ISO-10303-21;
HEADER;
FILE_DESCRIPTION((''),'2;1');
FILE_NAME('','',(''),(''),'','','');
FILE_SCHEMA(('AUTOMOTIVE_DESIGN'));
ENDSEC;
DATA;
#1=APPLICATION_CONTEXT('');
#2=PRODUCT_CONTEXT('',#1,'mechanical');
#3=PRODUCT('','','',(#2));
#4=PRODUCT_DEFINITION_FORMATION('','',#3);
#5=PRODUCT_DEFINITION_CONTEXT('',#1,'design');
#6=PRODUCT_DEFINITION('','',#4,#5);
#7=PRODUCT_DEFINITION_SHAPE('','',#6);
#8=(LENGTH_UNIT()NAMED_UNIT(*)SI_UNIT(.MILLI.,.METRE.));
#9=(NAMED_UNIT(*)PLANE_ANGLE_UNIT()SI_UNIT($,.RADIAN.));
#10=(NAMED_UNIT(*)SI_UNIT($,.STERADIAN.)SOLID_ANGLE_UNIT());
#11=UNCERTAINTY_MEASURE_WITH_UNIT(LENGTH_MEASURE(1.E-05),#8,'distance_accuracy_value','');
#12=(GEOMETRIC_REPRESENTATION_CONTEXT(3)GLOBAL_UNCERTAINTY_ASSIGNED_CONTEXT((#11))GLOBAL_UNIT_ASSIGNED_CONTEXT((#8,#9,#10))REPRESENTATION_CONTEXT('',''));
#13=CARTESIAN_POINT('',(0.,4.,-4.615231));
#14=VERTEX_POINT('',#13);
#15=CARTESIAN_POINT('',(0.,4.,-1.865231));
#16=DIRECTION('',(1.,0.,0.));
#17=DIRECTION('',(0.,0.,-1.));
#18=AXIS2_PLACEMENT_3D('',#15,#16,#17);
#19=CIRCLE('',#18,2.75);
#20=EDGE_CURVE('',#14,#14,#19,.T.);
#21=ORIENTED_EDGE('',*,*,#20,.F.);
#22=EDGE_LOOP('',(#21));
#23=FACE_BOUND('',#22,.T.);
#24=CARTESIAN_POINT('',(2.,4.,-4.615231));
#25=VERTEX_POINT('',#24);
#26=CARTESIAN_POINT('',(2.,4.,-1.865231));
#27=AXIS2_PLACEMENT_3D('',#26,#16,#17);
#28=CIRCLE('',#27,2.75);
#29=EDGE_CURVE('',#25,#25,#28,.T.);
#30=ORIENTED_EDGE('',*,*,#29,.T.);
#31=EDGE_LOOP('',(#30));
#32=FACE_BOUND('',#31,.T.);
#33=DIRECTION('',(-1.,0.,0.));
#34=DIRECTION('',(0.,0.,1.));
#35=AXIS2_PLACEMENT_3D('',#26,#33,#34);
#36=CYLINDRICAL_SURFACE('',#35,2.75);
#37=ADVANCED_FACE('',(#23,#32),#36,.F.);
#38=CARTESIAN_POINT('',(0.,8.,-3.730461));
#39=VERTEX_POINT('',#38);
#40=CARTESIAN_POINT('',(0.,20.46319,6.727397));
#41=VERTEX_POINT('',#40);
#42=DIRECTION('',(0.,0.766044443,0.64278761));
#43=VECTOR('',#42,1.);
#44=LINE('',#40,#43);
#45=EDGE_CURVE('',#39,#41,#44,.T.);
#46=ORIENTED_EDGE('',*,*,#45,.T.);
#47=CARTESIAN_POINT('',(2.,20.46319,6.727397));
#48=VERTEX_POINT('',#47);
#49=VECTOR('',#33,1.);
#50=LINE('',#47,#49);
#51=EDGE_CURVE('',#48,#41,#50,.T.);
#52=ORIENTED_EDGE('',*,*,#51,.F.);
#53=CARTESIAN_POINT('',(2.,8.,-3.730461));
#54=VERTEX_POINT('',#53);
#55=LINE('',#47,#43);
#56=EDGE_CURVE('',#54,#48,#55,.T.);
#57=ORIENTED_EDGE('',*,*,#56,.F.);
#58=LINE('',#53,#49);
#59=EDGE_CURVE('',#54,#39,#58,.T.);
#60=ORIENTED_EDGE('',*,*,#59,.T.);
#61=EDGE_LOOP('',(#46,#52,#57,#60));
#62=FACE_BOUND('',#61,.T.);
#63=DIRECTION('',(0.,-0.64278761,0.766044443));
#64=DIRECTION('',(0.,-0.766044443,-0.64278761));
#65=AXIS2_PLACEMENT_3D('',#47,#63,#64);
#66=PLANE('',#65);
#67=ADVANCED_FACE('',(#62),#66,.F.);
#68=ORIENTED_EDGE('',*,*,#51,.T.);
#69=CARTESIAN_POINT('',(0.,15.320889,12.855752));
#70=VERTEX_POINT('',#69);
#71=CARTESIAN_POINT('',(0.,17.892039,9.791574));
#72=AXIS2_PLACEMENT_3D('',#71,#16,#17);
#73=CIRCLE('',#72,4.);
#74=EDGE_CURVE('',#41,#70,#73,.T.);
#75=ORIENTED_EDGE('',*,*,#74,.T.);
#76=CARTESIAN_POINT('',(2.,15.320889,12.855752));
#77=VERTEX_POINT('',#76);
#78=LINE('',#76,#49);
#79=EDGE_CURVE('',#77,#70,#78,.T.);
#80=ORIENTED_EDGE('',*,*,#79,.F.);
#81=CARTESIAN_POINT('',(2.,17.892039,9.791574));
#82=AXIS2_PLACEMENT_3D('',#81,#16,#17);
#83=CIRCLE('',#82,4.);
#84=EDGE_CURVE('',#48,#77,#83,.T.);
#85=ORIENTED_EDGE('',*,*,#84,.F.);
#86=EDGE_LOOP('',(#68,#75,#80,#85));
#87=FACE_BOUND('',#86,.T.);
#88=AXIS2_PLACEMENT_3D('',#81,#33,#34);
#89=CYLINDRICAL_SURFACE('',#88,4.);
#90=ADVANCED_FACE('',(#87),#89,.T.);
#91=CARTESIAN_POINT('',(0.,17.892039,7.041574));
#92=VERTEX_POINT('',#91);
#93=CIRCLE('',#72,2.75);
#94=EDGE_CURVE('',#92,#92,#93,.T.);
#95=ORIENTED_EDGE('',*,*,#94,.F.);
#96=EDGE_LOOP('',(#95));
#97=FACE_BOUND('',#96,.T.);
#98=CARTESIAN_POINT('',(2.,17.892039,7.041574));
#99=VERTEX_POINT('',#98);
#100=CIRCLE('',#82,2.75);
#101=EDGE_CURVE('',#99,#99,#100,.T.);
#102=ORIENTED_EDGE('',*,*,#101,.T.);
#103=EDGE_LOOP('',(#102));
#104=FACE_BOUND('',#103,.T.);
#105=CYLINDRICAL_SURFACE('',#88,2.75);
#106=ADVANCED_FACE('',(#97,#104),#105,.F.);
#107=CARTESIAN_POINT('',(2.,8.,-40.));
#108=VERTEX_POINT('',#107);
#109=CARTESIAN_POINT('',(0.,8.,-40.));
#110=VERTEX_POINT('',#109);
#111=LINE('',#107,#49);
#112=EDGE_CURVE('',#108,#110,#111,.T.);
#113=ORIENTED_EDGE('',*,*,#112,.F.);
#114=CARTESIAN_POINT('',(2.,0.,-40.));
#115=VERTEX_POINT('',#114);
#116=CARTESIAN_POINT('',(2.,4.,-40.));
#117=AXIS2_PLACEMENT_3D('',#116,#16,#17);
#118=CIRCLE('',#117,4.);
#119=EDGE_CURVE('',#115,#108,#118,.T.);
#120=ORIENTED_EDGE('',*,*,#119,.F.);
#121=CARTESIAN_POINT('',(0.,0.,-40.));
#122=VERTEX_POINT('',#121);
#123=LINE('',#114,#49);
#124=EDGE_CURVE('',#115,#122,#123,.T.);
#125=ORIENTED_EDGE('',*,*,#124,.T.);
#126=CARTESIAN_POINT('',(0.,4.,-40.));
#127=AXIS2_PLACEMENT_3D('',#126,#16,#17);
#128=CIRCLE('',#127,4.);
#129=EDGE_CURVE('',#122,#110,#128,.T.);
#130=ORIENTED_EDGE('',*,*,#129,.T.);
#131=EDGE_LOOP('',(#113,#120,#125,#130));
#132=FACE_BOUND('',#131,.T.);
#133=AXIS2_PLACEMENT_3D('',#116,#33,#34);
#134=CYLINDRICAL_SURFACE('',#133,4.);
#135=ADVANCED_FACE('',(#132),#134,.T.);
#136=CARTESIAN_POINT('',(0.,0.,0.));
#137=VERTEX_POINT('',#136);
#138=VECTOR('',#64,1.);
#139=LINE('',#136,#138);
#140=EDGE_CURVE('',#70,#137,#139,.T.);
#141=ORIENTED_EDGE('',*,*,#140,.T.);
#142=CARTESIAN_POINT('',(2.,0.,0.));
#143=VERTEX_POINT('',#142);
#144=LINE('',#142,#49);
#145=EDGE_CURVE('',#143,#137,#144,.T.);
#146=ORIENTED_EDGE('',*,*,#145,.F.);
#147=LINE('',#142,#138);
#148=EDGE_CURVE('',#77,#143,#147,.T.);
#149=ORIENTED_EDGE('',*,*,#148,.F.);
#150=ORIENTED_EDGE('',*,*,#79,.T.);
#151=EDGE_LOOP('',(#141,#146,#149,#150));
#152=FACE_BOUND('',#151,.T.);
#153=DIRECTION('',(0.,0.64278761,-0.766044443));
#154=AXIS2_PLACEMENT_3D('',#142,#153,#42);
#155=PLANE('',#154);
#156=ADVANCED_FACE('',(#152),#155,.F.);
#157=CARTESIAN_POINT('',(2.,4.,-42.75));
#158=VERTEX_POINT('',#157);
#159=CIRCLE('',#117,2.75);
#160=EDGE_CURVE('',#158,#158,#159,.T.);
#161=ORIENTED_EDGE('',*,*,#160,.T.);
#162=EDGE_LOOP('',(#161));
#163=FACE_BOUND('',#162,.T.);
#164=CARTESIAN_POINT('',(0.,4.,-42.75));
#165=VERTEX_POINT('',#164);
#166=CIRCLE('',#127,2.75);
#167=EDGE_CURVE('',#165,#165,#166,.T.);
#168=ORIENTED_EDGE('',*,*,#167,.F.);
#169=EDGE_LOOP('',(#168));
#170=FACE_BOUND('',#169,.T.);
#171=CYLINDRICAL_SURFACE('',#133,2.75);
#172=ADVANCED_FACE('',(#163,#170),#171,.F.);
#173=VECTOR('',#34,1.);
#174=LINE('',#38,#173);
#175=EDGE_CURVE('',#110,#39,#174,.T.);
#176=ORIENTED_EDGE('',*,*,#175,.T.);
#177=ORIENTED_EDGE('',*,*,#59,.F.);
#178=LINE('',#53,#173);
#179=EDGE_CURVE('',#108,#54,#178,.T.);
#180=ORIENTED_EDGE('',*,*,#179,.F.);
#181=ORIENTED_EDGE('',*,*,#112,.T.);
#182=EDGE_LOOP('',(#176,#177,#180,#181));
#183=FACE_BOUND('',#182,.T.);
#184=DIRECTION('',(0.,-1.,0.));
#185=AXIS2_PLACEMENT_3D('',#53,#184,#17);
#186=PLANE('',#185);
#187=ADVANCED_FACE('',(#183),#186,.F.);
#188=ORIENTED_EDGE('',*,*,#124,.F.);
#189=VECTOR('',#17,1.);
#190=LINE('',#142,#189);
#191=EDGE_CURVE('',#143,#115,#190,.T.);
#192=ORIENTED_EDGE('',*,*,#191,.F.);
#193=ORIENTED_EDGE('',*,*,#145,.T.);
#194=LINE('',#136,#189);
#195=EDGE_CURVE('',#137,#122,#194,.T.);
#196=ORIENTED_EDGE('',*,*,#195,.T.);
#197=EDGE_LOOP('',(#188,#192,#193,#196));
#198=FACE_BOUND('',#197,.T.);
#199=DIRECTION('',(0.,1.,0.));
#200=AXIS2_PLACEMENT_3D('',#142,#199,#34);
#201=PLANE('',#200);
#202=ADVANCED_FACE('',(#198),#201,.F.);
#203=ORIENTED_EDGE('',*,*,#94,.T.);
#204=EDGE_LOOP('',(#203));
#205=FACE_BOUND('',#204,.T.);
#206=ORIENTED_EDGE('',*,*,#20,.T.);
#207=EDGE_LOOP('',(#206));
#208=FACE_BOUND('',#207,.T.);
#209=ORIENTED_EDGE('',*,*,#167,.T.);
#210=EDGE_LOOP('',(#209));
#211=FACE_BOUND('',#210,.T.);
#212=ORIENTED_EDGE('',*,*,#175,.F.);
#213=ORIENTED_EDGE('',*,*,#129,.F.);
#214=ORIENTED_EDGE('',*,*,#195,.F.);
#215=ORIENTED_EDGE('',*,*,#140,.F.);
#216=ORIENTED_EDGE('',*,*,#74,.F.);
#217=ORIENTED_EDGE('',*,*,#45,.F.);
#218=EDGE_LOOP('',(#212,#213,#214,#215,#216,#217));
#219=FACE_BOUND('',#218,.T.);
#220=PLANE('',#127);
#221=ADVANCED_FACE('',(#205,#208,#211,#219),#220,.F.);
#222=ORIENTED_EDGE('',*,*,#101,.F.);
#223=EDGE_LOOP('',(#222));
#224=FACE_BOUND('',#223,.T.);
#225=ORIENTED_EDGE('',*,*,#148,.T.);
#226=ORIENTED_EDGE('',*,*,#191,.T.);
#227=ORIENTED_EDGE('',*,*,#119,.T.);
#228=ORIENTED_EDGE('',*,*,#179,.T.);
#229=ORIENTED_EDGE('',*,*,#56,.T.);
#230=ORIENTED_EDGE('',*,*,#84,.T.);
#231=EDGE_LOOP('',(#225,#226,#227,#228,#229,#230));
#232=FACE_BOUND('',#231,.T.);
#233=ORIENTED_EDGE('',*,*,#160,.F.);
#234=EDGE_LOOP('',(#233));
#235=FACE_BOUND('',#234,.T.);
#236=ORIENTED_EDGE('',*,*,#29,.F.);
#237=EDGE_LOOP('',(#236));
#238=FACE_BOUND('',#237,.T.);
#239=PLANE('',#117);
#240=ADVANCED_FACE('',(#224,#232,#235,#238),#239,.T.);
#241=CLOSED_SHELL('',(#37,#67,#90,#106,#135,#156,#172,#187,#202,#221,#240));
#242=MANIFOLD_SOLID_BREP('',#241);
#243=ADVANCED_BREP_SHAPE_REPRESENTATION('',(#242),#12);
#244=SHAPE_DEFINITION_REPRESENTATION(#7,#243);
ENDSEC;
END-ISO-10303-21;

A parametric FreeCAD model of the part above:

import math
import FreeCAD as App
import Part
import Sketcher

V = App.Vector
Q = App.Units.Quantity

doc = App.newDocument("Part")
params = doc.addObject("Spreadsheet::Sheet", "Params")
for row, (alias, value) in enumerate([
    ("sketch1_radius", "4 mm"),
    ("sketch1_diameter", "5.5 mm"),
    ("sketch1_height", "40 mm"),
    ("sketch1_length", "20 mm"),
    ("pad1_length", "2 mm"),
], start=1):
    params.set(f"A{row}", alias)
    params.set(f"B{row}", "=" + value)
    params.setAlias(f"B{row}", alias)

body = doc.addObject("PartDesign::Body", "Body")

# Sketch on YZ plane
sketch1 = body.newObject("Sketcher::SketchObject", "Sketch")
sketch1.AttachmentSupport = (doc.getObject("YZ_Plane"), [""])
sketch1.MapMode = "FlatFace"
sketch1.addGeometry(Part.LineSegment(V(15.3, 12.9, 0), V(0, 0, 0)), False)
sketch1.addGeometry(Part.LineSegment(V(0, 0, 0), V(0, -40, 0)), False)
sketch1.addGeometry(Part.ArcOfCircle(Part.Circle(V(4, -40, 0), V(0, 0, 1), 4), math.radians(180), math.radians(360)), False)
sketch1.addGeometry(Part.LineSegment(V(8, -40, 0), V(8, -3.7, 0)), False)
sketch1.addGeometry(Part.LineSegment(V(8, -3.7, 0), V(20.5, 6.7, 0)), False)
sketch1.addGeometry(Part.ArcOfCircle(Part.Circle(V(17.9, 9.8, 0), V(0, 0, 1), 4), math.radians(-50), math.radians(130)), False)
sketch1.addGeometry(Part.Circle(V(4, -40, 0), V(0, 0, 1), 2.8), False)
sketch1.addGeometry(Part.Circle(V(4, -1.9, 0), V(0, 0, 1), 2.8), False)
sketch1.addGeometry(Part.Circle(V(17.9, 9.8, 0), V(0, 0, 1), 2.8), False)
sketch1.addConstraint(Sketcher.Constraint("Coincident", 0, 2, 1, 1))
sketch1.addConstraint(Sketcher.Constraint("Tangent", 1, 2, 2, 1))
sketch1.addConstraint(Sketcher.Constraint("Tangent", 2, 2, 3, 1))
sketch1.addConstraint(Sketcher.Constraint("Coincident", 3, 2, 4, 1))
sketch1.addConstraint(Sketcher.Constraint("Tangent", 4, 2, 5, 1))
sketch1.addConstraint(Sketcher.Constraint("Tangent", 5, 2, 0, 1))
sketch1.addConstraint(Sketcher.Constraint("Vertical", 1))
sketch1.addConstraint(Sketcher.Constraint("Vertical", 3))
sketch1.addConstraint(Sketcher.Constraint("Coincident", 0, 2, -1, 1))
sketch1.addConstraint(Sketcher.Constraint("Coincident", 6, 3, 2, 3))
sketch1.addConstraint(Sketcher.Constraint("Coincident", 8, 3, 5, 3))
sketch1.addConstraint(Sketcher.Constraint("Equal", 2, 5))
sketch1.addConstraint(Sketcher.Constraint("Equal", 6, 7))
sketch1.addConstraint(Sketcher.Constraint("Equal", 7, 8))
sketch1.addConstraint(Sketcher.Constraint("Parallel", 0, 4))
sketch1.addConstraint(Sketcher.Constraint("Vertical", 6, 3, 7, 3))
sketch1.addConstraint(Sketcher.Constraint("Radius", 2, Q("4 mm")))
sketch1.addConstraint(Sketcher.Constraint("Diameter", 6, Q("5.5 mm")))
sketch1.addConstraint(Sketcher.Constraint("DistanceY", 1, 2, 1, 1, Q("40 mm")))
sketch1.addConstraint(Sketcher.Constraint("Angle", 0, Q("-140 deg")))
sketch1.addConstraint(Sketcher.Constraint("Distance", 0, Q("20 mm")))
sketch1.addConstraint(Sketcher.Constraint("DistanceY", 7, 3, -1, 1, Q("1.865231 mm")))
sketch1.setExpression("Constraints[16]", "Params.sketch1_radius")
sketch1.setExpression("Constraints[17]", "Params.sketch1_diameter")
sketch1.setExpression("Constraints[18]", "Params.sketch1_height")
sketch1.setExpression("Constraints[20]", "Params.sketch1_length")
pad1 = body.newObject("PartDesign::Pad", "Pad")
pad1.Profile = sketch1
pad1.setExpression("Length", "Params.pad1_length")

doc.recompute()
